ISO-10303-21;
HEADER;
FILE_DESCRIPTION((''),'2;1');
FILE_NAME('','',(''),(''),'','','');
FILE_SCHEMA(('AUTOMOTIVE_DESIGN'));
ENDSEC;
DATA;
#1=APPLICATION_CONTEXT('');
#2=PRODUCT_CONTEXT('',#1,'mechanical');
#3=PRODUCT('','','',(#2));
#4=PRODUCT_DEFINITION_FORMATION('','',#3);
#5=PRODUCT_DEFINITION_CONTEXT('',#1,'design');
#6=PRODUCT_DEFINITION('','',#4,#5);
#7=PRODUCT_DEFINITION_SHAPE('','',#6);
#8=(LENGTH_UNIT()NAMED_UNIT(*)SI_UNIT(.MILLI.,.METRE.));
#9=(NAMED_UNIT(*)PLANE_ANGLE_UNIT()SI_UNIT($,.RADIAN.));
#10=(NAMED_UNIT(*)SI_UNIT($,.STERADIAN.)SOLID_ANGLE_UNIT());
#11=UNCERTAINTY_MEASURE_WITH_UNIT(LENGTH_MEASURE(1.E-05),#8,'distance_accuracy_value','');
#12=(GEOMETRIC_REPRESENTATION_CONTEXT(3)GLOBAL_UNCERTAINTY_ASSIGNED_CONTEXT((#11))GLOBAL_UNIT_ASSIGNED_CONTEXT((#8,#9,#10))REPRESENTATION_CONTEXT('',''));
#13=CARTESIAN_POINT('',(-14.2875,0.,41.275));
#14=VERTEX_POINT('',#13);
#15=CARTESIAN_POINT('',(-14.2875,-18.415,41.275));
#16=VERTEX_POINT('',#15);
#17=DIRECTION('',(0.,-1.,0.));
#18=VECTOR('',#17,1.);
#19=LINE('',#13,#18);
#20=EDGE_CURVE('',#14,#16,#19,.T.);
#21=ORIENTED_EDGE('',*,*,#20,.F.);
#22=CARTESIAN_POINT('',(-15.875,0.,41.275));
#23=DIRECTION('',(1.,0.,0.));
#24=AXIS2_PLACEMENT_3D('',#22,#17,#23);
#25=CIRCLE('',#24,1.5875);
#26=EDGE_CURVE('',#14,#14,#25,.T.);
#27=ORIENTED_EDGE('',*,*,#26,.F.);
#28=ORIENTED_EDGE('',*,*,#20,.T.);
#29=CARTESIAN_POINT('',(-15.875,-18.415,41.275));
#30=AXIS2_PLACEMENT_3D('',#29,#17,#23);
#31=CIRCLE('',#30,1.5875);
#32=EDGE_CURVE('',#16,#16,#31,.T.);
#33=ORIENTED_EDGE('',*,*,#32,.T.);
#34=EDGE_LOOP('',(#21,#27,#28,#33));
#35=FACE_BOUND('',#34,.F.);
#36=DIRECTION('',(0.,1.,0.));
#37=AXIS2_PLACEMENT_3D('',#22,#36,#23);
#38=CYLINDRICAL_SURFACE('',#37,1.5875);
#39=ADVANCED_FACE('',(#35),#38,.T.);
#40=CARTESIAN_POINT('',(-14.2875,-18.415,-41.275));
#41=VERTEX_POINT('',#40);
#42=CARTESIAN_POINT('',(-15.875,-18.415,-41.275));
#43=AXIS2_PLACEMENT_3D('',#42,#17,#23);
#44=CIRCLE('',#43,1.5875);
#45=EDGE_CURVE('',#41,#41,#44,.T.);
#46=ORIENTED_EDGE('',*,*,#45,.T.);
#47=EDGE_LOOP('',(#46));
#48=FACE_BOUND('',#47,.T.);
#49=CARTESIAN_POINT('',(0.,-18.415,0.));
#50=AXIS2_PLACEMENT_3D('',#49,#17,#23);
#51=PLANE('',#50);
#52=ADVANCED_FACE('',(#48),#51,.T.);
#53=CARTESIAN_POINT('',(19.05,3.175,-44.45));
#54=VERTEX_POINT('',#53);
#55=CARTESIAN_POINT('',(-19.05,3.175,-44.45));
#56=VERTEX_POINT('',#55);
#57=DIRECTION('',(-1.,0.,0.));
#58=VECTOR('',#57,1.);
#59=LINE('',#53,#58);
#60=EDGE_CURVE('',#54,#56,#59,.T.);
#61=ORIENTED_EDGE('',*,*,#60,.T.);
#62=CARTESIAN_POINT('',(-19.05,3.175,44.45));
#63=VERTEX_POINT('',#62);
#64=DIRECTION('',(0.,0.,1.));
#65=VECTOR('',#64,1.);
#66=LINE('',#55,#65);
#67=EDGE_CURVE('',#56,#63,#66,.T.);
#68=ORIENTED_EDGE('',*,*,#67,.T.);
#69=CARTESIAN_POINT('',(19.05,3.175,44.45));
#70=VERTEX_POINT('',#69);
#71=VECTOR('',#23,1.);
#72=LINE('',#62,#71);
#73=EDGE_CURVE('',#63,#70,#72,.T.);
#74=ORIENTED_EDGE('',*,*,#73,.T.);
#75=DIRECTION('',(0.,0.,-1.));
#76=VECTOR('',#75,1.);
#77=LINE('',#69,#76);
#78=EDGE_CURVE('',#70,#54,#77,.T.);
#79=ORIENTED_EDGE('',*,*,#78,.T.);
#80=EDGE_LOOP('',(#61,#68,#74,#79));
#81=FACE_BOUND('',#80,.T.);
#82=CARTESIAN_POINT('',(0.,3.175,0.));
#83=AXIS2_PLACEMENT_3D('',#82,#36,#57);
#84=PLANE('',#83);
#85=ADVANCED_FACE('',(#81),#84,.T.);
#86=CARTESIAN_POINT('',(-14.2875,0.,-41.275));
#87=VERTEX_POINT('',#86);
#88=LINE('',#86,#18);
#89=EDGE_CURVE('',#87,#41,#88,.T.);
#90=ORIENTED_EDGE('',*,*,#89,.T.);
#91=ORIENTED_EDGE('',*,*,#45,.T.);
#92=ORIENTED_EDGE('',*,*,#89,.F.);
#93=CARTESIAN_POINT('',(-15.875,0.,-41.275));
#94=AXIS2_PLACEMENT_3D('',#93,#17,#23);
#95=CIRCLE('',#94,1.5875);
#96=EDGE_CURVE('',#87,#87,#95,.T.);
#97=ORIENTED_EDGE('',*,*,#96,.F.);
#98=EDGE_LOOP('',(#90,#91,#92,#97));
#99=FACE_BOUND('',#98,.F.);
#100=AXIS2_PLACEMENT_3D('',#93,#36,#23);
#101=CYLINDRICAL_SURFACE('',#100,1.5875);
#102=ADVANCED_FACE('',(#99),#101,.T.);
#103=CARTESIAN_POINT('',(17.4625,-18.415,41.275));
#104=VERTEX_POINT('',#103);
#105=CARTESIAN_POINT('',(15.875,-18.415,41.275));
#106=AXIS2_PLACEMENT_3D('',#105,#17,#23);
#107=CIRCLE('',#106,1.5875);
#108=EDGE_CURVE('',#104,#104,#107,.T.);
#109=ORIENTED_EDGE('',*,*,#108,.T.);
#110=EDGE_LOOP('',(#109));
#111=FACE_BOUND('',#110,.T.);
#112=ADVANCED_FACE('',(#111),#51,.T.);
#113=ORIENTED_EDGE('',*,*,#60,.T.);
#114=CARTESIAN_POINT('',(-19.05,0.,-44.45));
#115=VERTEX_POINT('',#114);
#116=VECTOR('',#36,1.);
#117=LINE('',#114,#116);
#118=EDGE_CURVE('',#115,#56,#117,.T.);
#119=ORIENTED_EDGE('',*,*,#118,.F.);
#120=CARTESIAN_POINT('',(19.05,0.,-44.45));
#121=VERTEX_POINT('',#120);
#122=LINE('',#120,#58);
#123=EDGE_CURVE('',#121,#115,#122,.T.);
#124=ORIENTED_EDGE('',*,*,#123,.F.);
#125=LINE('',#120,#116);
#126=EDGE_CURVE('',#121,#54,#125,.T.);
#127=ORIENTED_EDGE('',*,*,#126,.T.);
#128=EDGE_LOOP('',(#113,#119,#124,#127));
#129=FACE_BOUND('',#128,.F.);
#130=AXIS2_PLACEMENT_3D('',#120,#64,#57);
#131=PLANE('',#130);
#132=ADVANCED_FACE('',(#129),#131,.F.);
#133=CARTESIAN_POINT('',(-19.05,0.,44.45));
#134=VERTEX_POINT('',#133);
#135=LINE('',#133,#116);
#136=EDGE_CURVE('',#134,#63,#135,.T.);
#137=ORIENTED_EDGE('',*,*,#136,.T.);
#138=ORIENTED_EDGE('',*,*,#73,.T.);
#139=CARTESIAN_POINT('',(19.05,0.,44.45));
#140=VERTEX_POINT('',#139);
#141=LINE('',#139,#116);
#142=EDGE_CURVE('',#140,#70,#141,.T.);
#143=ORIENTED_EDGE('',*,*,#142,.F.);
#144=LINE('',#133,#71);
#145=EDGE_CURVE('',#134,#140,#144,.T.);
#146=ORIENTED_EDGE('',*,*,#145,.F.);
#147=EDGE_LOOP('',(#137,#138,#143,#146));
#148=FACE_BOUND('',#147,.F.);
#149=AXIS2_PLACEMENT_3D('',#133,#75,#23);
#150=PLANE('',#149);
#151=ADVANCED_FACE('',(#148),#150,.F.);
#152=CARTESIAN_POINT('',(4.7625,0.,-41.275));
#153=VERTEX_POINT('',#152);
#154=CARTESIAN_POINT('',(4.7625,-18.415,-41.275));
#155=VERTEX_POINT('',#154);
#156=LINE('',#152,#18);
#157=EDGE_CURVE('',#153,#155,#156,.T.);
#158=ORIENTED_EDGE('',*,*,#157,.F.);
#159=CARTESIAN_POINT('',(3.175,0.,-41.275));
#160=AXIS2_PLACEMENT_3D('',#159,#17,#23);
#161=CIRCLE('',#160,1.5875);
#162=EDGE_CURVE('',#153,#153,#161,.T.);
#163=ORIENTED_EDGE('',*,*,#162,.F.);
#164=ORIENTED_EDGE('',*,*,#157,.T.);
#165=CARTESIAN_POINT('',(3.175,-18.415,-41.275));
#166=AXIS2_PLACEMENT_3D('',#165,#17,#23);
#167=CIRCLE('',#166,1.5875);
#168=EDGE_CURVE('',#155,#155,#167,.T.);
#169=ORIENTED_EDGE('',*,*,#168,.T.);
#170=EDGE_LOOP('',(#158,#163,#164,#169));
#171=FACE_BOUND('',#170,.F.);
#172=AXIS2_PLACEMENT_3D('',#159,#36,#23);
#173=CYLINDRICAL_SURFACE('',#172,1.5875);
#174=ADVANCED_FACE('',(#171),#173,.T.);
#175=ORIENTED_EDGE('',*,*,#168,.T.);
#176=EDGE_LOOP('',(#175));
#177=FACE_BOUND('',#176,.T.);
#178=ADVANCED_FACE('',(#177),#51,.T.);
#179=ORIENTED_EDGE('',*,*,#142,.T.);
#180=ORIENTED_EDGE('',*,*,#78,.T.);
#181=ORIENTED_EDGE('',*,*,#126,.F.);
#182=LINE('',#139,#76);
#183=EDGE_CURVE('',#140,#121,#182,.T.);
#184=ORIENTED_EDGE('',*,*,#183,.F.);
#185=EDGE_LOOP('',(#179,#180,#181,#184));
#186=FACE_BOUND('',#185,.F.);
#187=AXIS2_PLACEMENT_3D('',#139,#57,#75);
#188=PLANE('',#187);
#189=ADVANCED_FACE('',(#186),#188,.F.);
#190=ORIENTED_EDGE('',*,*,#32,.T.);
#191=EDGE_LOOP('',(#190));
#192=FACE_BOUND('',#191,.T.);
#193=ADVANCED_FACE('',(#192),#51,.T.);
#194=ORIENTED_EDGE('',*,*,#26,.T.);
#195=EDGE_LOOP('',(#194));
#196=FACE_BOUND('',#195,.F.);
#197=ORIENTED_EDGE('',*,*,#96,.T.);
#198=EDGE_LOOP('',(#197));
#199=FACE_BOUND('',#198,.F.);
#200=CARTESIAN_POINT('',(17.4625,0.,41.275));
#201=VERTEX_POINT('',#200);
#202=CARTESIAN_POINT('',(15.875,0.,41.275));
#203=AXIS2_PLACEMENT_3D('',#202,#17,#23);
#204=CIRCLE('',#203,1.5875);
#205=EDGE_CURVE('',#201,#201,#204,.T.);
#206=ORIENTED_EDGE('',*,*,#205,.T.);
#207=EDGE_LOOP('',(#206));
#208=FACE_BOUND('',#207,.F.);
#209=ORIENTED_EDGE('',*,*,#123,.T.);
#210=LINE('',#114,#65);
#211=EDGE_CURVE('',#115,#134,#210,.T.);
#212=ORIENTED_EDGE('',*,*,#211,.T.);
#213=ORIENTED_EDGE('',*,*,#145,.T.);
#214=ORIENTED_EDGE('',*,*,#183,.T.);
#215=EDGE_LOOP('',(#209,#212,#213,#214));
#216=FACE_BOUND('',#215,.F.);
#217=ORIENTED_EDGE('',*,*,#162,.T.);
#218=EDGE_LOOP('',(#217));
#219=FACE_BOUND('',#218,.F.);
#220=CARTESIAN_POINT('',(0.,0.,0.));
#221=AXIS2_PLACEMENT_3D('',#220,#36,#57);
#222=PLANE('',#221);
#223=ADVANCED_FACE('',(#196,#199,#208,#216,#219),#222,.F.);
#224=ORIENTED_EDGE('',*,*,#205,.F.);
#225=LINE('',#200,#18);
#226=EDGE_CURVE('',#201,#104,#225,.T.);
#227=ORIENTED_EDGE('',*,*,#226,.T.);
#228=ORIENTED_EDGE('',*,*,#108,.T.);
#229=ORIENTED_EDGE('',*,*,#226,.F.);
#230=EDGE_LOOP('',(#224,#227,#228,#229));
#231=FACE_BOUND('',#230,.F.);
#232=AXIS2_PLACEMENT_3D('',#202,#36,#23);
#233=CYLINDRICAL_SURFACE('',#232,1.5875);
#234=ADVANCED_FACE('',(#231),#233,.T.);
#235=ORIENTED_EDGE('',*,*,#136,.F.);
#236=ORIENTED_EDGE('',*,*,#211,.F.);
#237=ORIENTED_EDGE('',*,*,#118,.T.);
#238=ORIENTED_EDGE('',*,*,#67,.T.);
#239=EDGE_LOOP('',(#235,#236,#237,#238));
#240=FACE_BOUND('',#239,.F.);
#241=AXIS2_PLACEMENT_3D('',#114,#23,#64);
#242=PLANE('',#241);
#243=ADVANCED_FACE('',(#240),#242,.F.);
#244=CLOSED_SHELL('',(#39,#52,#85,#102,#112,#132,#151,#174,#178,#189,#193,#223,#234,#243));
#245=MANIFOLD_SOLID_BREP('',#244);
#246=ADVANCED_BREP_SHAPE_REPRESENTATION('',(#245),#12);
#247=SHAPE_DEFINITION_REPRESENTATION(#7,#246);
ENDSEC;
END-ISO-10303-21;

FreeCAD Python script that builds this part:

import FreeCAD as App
import Part
import Sketcher
from FreeCAD import Vector
Q = App.Units.Quantity

doc = App.newDocument("Part")
body = doc.addObject("PartDesign::Body", "Body")

sketch1 = body.newObject("Sketcher::SketchObject", "Sketch")
sketch1.AttachmentSupport = (doc.getObject("XZ_Plane"), [""])
sketch1.MapMode = "FlatFace"
sketch1.addGeometry(Part.LineSegment(Vector(-19, -44, 0), Vector(-19, 44, 0)), False)
sketch1.addGeometry(Part.LineSegment(Vector(-19, 44, 0), Vector(19, 44, 0)), False)
sketch1.addGeometry(Part.LineSegment(Vector(19, 44, 0), Vector(19, -44, 0)), False)
sketch1.addGeometry(Part.LineSegment(Vector(19, -44, 0), Vector(-19, -44, 0)), False)
sketch1.addConstraint(Sketcher.Constraint("Coincident", 0, 2, 1, 1))
sketch1.addConstraint(Sketcher.Constraint("Coincident", 1, 2, 2, 1))
sketch1.addConstraint(Sketcher.Constraint("Coincident", 2, 2, 3, 1))
sketch1.addConstraint(Sketcher.Constraint("Coincident", 3, 2, 0, 1))
sketch1.addConstraint(Sketcher.Constraint("Vertical", 0))
sketch1.addConstraint(Sketcher.Constraint("Horizontal", 1))
sketch1.addConstraint(Sketcher.Constraint("Vertical", 2))
sketch1.addConstraint(Sketcher.Constraint("Horizontal", 3))
sketch1.addConstraint(Sketcher.Constraint("Symmetric", 0, 2, 2, 2, -1, 1))
sketch1.addConstraint(Sketcher.Constraint("DistanceX", 1, 1, 1, 2, Q("1.5 in")))
sketch1.addConstraint(Sketcher.Constraint("DistanceY", 0, 1, 0, 2, Q("3.5 in")))
pad1 = body.newObject("PartDesign::Pad", "Pad")
pad1.Profile = sketch1
pad1.Length = Q("0.125 in")
pad1.Reversed = True

sketch2 = body.newObject("Sketcher::SketchObject", "Sketch001")
sketch2.AttachmentSupport = (doc.getObject("XZ_Plane"), [""])
sketch2.MapMode = "FlatFace"
sketch2.addGeometry(Part.Circle(Vector(15.9, 41.3, 0), Vector(0, 0, 1), 1.6), False)
sketch2.addGeometry(Part.Circle(Vector(-15.9, 41.3, 0), Vector(0, 0, 1), 1.6), False)
sketch2.addGeometry(Part.Circle(Vector(-15.9, -41.3, 0), Vector(0, 0, 1), 1.6), False)
sketch2.addGeometry(Part.Circle(Vector(3.2, -41.3, 0), Vector(0, 0, 1), 1.6), False)
sketch2.addConstraint(Sketcher.Constraint("Equal", 0, 1))
sketch2.addConstraint(Sketcher.Constraint("Equal", 1, 2))
sketch2.addConstraint(Sketcher.Constraint("Equal", 2, 3))
sketch2.addConstraint(Sketcher.Constraint("Symmetric", 0, 3, 2, 3, -1, 1))
sketch2.addConstraint(Sketcher.Constraint("Symmetric", 0, 3, 1, 3, -2))
sketch2.addConstraint(Sketcher.Constraint("Horizontal", 2, 3, 3, 3))
sketch2.addConstraint(Sketcher.Constraint("Diameter", 0, Q("0.125 in")))
sketch2.addConstraint(Sketcher.Constraint("DistanceX", -1, 1, 0, 3, Q("0.625 in")))
sketch2.addConstraint(Sketcher.Constraint("DistanceX", -1, 1, 3, 3, Q("0.125 in")))
sketch2.addConstraint(Sketcher.Constraint("DistanceY", 2, 3, 1, 3, Q("3.25 in")))
pad2 = body.newObject("PartDesign::Pad", "Pad001")
pad2.Profile = sketch2
pad2.Length = Q("0.725 in")

doc.recompute()
